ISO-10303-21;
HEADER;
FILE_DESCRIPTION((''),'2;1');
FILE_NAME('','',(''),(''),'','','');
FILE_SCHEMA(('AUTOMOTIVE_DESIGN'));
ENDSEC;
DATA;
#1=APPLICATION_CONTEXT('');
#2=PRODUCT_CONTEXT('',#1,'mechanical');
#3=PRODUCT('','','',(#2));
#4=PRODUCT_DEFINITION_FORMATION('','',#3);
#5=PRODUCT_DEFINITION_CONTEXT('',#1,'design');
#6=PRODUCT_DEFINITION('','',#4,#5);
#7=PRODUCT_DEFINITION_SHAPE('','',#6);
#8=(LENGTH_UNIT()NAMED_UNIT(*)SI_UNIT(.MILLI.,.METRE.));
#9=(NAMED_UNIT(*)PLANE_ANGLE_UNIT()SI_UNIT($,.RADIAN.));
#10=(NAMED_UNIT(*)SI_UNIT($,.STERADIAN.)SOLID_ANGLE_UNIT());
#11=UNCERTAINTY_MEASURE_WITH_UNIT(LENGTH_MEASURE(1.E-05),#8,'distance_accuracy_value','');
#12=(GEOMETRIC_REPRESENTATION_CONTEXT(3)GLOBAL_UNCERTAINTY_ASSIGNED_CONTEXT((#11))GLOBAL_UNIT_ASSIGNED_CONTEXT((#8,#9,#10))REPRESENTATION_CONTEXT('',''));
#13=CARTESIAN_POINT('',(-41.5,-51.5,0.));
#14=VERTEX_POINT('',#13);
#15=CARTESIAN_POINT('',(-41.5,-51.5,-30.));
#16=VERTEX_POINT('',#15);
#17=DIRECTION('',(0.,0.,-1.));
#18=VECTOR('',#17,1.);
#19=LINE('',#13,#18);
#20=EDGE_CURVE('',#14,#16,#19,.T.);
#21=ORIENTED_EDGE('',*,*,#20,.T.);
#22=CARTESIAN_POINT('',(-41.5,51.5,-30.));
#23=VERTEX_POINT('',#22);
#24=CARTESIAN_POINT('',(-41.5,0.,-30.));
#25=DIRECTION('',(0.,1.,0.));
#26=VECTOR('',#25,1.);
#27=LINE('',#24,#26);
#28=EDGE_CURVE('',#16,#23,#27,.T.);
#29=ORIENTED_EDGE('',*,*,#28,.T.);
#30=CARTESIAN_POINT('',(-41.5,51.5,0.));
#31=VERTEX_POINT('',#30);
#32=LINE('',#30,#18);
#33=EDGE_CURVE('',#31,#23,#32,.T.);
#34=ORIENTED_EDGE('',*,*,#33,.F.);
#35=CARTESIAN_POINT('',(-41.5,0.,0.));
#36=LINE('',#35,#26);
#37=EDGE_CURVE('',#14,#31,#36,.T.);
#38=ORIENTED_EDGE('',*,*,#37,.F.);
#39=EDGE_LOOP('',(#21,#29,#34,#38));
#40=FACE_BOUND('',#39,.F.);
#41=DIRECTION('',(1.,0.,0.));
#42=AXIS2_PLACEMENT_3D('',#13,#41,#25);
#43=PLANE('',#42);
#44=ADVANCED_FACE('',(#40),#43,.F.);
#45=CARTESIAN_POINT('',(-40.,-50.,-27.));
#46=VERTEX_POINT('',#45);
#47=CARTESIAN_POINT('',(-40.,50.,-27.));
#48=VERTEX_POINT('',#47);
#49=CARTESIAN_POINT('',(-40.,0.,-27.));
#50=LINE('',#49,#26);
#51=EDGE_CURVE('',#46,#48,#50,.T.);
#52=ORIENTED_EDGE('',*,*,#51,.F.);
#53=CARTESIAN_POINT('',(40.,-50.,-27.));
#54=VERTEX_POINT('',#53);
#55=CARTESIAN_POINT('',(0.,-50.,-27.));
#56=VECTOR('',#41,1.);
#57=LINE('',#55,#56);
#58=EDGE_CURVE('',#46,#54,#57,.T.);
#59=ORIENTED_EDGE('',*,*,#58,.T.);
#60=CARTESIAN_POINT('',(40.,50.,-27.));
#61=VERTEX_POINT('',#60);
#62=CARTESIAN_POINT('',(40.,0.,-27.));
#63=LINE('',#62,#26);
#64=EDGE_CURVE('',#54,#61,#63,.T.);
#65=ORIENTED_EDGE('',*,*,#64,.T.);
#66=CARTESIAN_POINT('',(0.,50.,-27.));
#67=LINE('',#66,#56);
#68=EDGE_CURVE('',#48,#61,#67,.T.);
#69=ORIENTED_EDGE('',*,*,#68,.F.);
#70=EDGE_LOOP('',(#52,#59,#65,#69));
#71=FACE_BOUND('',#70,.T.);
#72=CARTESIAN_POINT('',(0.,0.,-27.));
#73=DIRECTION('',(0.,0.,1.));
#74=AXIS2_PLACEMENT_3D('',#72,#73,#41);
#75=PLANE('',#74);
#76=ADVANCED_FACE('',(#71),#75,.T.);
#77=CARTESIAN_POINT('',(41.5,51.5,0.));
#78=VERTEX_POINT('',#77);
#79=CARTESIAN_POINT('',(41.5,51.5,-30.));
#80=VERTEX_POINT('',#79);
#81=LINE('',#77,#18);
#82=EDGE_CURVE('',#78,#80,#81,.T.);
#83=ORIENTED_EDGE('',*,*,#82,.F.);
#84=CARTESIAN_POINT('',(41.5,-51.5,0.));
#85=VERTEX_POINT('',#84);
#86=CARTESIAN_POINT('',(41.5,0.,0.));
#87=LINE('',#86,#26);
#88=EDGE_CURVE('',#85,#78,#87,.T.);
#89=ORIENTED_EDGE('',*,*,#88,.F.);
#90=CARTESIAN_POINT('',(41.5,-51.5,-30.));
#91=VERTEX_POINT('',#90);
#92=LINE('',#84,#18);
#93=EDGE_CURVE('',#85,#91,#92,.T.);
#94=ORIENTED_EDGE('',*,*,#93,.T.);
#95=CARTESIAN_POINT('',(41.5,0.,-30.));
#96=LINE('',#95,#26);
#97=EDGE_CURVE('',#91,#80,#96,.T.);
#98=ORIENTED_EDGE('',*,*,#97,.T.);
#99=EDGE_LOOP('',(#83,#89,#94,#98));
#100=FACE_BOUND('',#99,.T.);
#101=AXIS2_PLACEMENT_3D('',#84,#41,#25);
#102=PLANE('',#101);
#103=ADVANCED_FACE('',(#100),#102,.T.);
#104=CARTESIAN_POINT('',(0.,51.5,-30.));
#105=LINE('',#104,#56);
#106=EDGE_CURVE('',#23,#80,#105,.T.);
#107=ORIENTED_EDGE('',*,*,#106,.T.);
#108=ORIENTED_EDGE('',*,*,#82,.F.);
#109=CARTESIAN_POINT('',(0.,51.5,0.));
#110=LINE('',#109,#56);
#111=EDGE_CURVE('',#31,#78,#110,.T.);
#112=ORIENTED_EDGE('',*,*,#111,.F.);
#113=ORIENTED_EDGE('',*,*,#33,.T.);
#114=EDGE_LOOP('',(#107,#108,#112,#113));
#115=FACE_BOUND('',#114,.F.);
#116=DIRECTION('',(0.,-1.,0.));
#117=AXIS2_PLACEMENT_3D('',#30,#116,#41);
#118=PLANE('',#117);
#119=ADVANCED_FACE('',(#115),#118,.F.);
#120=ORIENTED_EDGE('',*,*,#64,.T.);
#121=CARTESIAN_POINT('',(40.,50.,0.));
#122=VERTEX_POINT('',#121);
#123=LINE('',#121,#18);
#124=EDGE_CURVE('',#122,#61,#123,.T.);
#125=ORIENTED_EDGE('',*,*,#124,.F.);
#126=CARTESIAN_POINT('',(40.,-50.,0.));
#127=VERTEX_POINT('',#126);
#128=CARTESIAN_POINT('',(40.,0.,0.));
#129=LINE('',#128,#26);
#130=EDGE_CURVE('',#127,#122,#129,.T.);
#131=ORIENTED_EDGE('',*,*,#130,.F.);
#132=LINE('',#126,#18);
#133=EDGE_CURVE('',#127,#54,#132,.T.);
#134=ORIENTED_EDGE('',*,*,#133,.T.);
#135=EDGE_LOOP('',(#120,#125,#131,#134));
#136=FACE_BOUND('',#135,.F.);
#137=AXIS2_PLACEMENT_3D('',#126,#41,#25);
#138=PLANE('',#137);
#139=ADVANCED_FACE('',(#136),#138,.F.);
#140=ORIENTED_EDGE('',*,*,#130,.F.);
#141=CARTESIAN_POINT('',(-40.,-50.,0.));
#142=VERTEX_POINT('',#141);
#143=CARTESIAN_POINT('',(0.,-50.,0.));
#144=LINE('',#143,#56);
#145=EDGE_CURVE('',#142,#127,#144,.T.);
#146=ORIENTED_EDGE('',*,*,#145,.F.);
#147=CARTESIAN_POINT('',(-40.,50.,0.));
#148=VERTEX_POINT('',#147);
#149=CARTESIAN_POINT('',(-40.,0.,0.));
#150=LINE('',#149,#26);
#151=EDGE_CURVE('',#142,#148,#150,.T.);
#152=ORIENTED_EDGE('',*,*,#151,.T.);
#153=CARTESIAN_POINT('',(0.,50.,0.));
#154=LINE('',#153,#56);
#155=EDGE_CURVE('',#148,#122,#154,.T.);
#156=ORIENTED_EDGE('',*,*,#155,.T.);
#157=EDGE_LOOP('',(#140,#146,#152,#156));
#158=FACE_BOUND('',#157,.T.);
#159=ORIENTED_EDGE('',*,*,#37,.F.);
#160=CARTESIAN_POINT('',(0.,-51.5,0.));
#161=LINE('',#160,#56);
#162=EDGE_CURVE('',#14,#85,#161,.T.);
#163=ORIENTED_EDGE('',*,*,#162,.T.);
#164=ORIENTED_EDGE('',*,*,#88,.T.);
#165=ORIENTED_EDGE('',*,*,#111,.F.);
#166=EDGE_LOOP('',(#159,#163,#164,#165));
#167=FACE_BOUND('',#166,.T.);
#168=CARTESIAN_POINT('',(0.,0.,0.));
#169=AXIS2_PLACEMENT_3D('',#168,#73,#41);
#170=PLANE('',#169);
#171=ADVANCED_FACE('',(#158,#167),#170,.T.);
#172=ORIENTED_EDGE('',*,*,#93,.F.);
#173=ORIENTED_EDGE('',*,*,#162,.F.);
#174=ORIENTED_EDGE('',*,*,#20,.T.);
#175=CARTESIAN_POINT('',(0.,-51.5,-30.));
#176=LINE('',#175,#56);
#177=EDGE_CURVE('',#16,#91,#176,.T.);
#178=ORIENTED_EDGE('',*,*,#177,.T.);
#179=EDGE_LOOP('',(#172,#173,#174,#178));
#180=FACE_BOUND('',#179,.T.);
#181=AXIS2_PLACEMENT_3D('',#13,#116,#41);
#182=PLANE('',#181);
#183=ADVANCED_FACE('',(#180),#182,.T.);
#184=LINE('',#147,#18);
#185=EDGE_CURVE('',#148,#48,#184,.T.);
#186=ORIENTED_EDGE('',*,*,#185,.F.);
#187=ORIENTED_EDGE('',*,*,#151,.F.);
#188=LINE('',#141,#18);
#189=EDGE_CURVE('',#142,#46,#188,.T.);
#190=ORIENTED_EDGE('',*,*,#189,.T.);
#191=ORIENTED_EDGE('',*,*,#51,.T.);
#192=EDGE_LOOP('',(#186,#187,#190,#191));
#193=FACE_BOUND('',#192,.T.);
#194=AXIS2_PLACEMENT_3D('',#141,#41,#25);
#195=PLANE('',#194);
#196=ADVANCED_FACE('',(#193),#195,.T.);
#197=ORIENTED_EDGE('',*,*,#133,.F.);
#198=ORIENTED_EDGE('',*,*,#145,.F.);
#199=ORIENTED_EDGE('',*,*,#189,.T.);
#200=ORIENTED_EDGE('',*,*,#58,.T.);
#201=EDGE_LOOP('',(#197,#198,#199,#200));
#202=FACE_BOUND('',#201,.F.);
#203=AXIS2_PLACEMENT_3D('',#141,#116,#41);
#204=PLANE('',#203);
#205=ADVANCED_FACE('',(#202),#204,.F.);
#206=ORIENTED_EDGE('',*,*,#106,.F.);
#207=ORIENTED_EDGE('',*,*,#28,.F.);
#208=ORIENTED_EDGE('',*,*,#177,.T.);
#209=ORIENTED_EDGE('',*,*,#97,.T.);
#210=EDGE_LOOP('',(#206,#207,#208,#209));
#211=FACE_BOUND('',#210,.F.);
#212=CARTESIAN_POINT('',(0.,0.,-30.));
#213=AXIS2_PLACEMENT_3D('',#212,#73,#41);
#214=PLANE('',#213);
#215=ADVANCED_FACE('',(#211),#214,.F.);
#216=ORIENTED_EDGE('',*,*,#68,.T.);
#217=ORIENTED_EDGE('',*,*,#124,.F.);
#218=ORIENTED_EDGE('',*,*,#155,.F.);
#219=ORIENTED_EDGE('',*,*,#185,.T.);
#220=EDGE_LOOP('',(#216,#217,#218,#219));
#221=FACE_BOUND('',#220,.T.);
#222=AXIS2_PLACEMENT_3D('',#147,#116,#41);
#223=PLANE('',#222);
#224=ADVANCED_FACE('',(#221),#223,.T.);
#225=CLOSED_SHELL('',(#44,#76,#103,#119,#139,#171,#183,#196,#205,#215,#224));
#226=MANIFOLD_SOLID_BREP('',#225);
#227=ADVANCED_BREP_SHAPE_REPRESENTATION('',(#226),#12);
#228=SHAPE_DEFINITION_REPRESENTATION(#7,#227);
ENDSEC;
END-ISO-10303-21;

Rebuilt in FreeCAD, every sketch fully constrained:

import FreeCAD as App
import Part
import Sketcher
Q = App.Units.Quantity

doc = App.newDocument("Part")
params = doc.addObject("Spreadsheet::Sheet", "Params")
for row, (alias, value) in enumerate([
    ("sketch1_width", "83 mm"),
    ("sketch1_height", "103 mm"),
    ("pad1_length", "30 mm"),
    ("sketch2_width", "80 mm"),
    ("sketch2_height", "100 mm"),
    ("pocket1_length", "27 mm"),
], start=1):
    params.set(f"A{row}", alias)
    params.set(f"B{row}", "=" + value)
    params.setAlias(f"B{row}", alias)

body = doc.addObject("PartDesign::Body", "Body")

# Sketch on XY plane
sketch1 = body.newObject("Sketcher::SketchObject", "Sketch")
sketch1.AttachmentSupport = (doc.getObject("XY_Plane"), [""])
sketch1.MapMode = "FlatFace"
sketch1.addGeometry(Part.LineSegment(App.Vector(-42, 52, 0), App.Vector(-42, -52, 0)), False)
sketch1.addGeometry(Part.LineSegment(App.Vector(-42, -52, 0), App.Vector(42, -52, 0)), False)
sketch1.addGeometry(Part.LineSegment(App.Vector(42, -52, 0), App.Vector(42, 52, 0)), False)
sketch1.addGeometry(Part.LineSegment(App.Vector(42, 52, 0), App.Vector(-42, 52, 0)), False)
sketch1.addConstraint(Sketcher.Constraint("Coincident", 0, 2, 1, 1))
sketch1.addConstraint(Sketcher.Constraint("Coincident", 1, 2, 2, 1))
sketch1.addConstraint(Sketcher.Constraint("Coincident", 2, 2, 3, 1))
sketch1.addConstraint(Sketcher.Constraint("Coincident", 3, 2, 0, 1))
sketch1.addConstraint(Sketcher.Constraint("Vertical", 0))
sketch1.addConstraint(Sketcher.Constraint("Horizontal", 1))
sketch1.addConstraint(Sketcher.Constraint("Vertical", 2))
sketch1.addConstraint(Sketcher.Constraint("Horizontal", 3))
sketch1.addConstraint(Sketcher.Constraint("Symmetric", 0, 2, 2, 2, -1, 1))
sketch1.addConstraint(Sketcher.Constraint("DistanceX", 1, 1, 1, 2, Q("83 mm")))
sketch1.addConstraint(Sketcher.Constraint("DistanceY", 0, 2, 0, 1, Q("103 mm")))
sketch1.setExpression("Constraints[9]", "Params.sketch1_width")
sketch1.setExpression("Constraints[10]", "Params.sketch1_height")
pad1 = body.newObject("PartDesign::Pad", "Pad")
pad1.Profile = sketch1
pad1.setExpression("Length", "Params.pad1_length")
pad1.Reversed = True

# Sketch on XY plane
sketch2 = body.newObject("Sketcher::SketchObject", "Sketch001")
sketch2.AttachmentSupport = (doc.getObject("XY_Plane"), [""])
sketch2.MapMode = "FlatFace"
sketch2.addGeometry(Part.LineSegment(App.Vector(-40, 50, 0), App.Vector(-40, -50, 0)), False)
sketch2.addGeometry(Part.LineSegment(App.Vector(-40, -50, 0), App.Vector(40, -50, 0)), False)
sketch2.addGeometry(Part.LineSegment(App.Vector(40, -50, 0), App.Vector(40, 50, 0)), False)
sketch2.addGeometry(Part.LineSegment(App.Vector(40, 50, 0), App.Vector(-40, 50, 0)), False)
sketch2.addConstraint(Sketcher.Constraint("Coincident", 0, 2, 1, 1))
sketch2.addConstraint(Sketcher.Constraint("Coincident", 1, 2, 2, 1))
sketch2.addConstraint(Sketcher.Constraint("Coincident", 2, 2, 3, 1))
sketch2.addConstraint(Sketcher.Constraint("Coincident", 3, 2, 0, 1))
sketch2.addConstraint(Sketcher.Constraint("Vertical", 0))
sketch2.addConstraint(Sketcher.Constraint("Horizontal", 1))
sketch2.addConstraint(Sketcher.Constraint("Vertical", 2))
sketch2.addConstraint(Sketcher.Constraint("Horizontal", 3))
sketch2.addConstraint(Sketcher.Constraint("Symmetric", 0, 2, 2, 2, -1, 1))
sketch2.addConstraint(Sketcher.Constraint("DistanceX", 1, 1, 1, 2, Q("80 mm")))
sketch2.addConstraint(Sketcher.Constraint("DistanceY", 0, 2, 0, 1, Q("100 mm")))
sketch2.setExpression("Constraints[9]", "Params.sketch2_width")
sketch2.setExpression("Constraints[10]", "Params.sketch2_height")
pocket1 = body.newObject("PartDesign::Pocket", "Pocket")
pocket1.Profile = sketch2
pocket1.setExpression("Length", "Params.pocket1_length")

doc.recompute()
